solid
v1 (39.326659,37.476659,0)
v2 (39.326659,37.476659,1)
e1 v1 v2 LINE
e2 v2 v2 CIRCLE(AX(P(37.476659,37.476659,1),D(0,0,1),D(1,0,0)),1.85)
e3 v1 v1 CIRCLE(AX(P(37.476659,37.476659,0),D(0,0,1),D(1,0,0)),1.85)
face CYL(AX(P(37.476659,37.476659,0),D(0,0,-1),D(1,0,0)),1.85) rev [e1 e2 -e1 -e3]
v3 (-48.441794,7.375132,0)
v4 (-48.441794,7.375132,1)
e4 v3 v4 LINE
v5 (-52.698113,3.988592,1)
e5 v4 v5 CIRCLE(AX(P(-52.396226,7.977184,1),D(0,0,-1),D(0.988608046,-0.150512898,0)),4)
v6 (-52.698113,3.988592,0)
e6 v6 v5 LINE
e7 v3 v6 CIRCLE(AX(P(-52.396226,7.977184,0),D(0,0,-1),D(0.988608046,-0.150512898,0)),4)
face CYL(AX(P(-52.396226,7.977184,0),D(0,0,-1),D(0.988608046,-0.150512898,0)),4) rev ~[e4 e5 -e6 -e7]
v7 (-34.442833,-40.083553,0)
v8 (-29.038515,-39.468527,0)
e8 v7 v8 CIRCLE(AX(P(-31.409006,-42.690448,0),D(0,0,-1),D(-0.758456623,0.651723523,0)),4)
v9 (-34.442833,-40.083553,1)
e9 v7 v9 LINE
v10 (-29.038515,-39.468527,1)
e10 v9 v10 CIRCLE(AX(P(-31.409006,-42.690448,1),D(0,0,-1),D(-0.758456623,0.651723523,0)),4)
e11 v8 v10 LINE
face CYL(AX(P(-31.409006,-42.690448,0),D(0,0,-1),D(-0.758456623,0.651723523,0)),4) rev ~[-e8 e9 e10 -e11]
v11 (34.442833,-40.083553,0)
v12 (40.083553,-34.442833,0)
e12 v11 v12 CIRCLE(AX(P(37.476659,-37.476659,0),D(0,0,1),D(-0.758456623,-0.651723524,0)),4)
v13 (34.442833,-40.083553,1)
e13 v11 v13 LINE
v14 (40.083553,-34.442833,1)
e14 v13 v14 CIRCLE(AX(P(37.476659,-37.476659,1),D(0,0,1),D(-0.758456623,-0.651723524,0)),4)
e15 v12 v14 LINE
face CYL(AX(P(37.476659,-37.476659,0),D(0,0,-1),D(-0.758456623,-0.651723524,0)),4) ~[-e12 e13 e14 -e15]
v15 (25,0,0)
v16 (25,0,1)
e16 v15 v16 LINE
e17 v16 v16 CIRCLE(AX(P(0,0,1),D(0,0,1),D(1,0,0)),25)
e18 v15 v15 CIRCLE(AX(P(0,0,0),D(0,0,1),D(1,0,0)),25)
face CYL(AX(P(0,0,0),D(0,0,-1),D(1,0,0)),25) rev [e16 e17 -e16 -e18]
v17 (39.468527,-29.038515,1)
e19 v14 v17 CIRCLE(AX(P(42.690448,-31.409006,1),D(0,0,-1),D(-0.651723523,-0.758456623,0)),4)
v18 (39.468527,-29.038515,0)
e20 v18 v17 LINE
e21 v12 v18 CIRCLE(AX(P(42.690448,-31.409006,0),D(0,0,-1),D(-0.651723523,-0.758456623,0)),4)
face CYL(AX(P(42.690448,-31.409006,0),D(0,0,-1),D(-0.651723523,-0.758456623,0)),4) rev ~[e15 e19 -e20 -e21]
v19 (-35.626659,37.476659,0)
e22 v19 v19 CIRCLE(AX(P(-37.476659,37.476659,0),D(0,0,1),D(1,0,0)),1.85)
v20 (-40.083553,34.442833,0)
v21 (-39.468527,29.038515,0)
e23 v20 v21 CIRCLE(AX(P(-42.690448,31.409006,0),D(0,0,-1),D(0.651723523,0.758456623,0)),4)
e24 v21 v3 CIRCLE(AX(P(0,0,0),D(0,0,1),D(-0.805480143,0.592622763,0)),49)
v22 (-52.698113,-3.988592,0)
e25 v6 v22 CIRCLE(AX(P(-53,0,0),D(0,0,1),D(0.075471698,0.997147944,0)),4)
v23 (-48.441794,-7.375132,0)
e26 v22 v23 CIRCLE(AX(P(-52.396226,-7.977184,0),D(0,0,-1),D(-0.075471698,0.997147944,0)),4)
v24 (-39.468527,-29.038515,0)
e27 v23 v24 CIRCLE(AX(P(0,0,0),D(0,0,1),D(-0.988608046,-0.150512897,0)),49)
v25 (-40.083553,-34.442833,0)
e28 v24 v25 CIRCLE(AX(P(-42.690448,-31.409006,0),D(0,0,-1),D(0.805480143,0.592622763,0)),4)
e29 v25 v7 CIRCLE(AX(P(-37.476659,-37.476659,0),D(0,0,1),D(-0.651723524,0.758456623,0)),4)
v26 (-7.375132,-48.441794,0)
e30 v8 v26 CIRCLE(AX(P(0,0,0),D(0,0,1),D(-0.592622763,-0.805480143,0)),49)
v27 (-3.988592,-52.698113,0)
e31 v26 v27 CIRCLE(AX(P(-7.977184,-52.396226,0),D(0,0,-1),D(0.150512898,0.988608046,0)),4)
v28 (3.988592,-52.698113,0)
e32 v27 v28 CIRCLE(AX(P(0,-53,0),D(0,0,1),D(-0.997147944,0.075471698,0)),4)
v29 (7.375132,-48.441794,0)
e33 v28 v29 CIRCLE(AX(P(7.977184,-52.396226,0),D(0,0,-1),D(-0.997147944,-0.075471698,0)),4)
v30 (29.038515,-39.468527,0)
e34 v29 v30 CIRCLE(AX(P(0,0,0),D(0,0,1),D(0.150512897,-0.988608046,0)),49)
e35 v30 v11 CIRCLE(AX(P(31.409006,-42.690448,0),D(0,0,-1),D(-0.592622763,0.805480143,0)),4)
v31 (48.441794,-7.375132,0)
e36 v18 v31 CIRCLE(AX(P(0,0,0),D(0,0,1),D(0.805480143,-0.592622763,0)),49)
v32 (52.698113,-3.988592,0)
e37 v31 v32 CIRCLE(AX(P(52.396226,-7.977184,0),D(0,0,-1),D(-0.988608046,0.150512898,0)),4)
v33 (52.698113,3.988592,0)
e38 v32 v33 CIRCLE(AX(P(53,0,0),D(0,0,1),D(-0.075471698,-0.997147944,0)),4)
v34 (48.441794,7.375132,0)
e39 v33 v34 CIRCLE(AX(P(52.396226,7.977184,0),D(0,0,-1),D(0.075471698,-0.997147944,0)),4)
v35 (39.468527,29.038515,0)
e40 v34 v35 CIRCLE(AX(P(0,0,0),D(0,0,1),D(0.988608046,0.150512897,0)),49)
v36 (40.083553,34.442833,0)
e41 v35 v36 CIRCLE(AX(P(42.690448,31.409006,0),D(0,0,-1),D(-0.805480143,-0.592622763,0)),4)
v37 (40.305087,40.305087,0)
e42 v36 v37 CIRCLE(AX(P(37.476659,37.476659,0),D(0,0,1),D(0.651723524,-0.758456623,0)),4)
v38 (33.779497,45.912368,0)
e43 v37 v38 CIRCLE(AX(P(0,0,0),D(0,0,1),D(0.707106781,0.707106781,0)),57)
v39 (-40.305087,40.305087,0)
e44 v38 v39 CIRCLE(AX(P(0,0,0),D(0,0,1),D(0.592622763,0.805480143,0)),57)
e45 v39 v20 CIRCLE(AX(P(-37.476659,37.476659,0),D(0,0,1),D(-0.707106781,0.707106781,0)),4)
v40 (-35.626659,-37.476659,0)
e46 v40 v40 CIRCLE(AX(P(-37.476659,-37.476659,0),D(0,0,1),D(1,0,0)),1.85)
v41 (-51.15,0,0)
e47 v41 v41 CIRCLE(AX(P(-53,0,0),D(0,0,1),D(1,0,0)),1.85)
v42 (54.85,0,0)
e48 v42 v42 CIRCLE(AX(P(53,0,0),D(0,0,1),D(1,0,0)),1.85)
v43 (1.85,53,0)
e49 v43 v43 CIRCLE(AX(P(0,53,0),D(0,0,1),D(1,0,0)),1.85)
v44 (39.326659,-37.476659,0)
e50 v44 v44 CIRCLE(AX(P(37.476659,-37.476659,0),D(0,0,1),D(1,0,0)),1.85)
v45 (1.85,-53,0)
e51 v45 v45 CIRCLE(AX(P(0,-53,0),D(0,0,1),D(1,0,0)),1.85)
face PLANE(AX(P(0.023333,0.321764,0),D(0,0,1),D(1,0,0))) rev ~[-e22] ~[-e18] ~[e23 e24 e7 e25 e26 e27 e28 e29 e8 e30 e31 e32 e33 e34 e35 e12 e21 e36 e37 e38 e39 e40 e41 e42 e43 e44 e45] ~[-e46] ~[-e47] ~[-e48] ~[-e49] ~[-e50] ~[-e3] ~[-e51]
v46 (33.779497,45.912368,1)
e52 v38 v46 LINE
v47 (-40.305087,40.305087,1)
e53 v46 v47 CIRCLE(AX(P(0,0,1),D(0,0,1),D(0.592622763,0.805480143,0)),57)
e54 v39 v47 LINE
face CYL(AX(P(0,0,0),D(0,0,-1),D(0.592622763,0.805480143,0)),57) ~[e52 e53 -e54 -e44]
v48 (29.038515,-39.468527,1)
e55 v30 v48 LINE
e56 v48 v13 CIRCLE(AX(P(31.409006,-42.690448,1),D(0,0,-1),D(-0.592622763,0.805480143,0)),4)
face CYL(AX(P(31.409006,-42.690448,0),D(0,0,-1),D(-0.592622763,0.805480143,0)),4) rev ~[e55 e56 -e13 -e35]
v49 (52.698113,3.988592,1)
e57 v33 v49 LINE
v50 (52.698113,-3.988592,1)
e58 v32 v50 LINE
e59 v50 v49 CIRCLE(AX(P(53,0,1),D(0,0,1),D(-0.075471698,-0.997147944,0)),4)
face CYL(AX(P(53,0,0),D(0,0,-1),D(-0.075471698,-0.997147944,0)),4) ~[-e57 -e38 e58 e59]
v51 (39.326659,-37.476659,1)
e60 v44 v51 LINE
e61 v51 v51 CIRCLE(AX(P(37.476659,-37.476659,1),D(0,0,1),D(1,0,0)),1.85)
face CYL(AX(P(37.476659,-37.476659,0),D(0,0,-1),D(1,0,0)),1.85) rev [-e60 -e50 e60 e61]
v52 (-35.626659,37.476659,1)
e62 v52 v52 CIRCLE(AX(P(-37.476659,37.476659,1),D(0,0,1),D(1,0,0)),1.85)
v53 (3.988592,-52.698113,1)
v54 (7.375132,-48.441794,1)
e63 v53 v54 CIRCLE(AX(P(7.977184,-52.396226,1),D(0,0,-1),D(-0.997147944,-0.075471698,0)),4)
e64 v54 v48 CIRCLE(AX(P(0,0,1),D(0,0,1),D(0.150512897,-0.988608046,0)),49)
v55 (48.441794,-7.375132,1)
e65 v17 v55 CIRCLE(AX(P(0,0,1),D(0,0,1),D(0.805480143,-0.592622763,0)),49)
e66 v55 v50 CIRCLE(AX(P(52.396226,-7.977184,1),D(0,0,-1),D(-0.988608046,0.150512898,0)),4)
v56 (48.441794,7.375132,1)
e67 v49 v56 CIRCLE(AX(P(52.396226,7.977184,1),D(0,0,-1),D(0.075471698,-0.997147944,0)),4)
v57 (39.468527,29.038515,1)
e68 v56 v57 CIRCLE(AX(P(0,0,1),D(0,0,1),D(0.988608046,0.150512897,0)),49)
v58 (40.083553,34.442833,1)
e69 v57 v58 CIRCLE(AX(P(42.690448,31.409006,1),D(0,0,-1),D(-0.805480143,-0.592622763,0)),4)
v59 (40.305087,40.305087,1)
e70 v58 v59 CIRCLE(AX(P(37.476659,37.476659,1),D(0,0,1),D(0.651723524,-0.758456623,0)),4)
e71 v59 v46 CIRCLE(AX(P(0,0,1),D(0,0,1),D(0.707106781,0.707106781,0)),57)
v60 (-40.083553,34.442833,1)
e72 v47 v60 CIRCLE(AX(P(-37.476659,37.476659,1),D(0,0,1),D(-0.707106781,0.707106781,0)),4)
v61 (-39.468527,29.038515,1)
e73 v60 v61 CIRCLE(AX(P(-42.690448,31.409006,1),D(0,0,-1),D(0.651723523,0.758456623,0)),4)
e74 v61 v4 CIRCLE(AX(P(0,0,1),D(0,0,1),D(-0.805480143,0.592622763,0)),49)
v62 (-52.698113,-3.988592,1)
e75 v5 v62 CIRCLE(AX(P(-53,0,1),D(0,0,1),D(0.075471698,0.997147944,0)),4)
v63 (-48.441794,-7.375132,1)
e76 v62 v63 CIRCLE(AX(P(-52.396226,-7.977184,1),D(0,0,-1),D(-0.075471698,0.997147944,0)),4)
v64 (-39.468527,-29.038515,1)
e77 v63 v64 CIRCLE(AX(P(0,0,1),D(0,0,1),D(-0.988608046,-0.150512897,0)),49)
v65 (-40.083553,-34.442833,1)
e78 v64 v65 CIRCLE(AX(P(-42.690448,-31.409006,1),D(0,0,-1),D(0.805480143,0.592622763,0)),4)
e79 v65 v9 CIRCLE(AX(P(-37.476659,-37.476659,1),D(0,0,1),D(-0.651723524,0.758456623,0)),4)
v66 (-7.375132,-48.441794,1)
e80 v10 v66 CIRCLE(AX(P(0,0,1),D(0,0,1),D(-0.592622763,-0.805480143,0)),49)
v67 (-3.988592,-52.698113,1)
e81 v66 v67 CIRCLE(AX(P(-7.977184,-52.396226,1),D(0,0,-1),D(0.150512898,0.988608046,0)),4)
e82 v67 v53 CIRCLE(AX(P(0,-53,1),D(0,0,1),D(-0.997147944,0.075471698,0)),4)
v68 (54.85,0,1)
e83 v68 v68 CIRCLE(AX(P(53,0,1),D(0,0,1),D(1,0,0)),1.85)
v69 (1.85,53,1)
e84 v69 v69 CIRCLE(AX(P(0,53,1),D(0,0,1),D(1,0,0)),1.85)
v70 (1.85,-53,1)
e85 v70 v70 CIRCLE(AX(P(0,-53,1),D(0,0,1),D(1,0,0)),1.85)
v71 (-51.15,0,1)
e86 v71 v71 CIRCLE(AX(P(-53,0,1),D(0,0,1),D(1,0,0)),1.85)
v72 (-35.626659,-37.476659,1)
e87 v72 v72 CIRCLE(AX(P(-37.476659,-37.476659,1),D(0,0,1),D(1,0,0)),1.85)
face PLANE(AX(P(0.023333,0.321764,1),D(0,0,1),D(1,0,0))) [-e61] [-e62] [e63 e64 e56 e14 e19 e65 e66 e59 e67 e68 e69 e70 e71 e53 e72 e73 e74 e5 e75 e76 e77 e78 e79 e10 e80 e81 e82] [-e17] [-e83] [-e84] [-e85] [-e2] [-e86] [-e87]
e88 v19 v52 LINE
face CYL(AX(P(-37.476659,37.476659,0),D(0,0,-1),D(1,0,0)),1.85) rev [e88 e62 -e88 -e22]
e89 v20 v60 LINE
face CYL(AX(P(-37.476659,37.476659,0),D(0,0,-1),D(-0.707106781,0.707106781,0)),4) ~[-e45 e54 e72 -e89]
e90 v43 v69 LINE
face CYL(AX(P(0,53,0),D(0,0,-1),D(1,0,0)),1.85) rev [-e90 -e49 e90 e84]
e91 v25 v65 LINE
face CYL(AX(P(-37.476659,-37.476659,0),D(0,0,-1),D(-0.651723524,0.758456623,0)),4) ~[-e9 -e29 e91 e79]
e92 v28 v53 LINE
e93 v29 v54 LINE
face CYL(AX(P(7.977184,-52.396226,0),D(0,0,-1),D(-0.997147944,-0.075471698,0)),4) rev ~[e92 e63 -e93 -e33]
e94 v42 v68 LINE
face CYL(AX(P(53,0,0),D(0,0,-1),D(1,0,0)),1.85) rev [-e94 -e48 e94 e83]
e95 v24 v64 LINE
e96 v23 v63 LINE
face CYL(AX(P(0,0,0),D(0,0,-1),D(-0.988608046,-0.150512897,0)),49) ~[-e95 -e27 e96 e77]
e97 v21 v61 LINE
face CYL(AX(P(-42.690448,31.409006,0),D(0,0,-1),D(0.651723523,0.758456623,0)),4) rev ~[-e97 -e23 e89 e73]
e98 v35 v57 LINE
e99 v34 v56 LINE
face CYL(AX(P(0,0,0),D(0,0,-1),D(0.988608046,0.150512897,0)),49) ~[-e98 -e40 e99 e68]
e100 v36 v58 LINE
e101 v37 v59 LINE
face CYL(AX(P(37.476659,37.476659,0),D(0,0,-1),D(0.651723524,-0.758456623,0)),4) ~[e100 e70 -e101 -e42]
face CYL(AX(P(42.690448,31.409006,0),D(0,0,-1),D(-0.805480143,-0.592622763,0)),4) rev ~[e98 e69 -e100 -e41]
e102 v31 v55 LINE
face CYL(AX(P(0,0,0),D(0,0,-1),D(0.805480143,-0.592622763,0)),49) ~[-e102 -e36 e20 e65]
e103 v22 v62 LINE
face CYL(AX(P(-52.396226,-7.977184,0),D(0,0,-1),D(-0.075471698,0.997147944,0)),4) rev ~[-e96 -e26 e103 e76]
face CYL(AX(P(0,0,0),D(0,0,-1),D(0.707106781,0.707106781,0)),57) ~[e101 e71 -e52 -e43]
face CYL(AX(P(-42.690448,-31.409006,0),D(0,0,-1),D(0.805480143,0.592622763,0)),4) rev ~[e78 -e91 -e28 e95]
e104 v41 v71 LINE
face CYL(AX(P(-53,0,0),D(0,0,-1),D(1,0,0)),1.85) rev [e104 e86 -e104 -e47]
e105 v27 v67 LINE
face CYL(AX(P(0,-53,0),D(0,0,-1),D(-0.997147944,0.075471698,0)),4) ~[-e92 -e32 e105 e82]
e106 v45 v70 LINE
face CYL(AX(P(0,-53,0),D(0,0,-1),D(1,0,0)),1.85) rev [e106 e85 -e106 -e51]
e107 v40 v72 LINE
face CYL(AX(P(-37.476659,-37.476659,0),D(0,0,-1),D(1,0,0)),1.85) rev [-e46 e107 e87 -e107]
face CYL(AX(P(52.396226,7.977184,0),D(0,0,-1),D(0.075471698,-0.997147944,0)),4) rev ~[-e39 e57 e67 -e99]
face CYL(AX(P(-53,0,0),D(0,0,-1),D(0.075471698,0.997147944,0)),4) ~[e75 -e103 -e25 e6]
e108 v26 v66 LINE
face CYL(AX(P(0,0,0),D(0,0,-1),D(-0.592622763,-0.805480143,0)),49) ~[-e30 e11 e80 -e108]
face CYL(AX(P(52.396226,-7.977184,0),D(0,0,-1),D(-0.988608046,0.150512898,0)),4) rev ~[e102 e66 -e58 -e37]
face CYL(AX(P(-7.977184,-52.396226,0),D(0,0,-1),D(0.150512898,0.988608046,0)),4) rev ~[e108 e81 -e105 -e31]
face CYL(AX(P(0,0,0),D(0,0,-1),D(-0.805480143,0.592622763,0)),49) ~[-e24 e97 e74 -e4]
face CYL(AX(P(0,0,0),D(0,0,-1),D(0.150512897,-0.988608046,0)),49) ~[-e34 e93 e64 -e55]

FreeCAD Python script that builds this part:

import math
import FreeCAD as App
import Part
import Sketcher

V = App.Vector
Q = App.Units.Quantity

doc = App.newDocument("Part")
body = doc.addObject("PartDesign::Body", "Body")

sketch1 = body.newObject("Sketcher::SketchObject", "Sketch")
sketch1.AttachmentSupport = (doc.getObject("XY_Plane"), [""])
sketch1.MapMode = "FlatFace"
sketch1.addGeometry(Part.ArcOfCircle(Part.Circle(V(0, 0, 0), V(0, 0, 1), 57), math.radians(53.656651), math.radians(135)), False)
sketch1.addGeometry(Part.ArcOfCircle(Part.Circle(V(-37.476659, 37.476659, 0), V(0, 0, 1), 4), math.radians(135), math.radians(229.328325)), False)
sketch1.addGeometry(Part.ArcOfCircle(Part.Circle(V(-42.690448, 31.409006, 0), V(0, 0, 1), 4), math.radians(-36.343349), math.radians(49.328325)), False)
sketch1.addGeometry(Part.ArcOfCircle(Part.Circle(V(0, 0, 0), V(0, 0, 1), 49), math.radians(143.656651), math.radians(171.343349)), False)
sketch1.addGeometry(Part.ArcOfCircle(Part.Circle(V(-52.396226, 7.977184, 0), V(0, 0, 1), 4), math.radians(-94.328325), math.radians(-8.656651)), False)
sketch1.addGeometry(Part.ArcOfCircle(Part.Circle(V(-53, 0, 0), V(0, 0, 1), 4), math.radians(85.671675), math.radians(274.328325)), False)
sketch1.addGeometry(Part.ArcOfCircle(Part.Circle(V(-52.396226, -7.977184, 0), V(0, 0, 1), 4), math.radians(8.656651), math.radians(94.328325)), False)
sketch1.addGeometry(Part.ArcOfCircle(Part.Circle(V(0, 0, 0), V(0, 0, 1), 49), math.radians(-171.343349), math.radians(-143.656651)), False)
sketch1.addGeometry(Part.ArcOfCircle(Part.Circle(V(-42.690448, -31.409006, 0), V(0, 0, 1), 4), math.radians(-49.328325), math.radians(36.343349)), False)
sketch1.addGeometry(Part.ArcOfCircle(Part.Circle(V(-37.476659, -37.476659, 0), V(0, 0, 1), 4), math.radians(130.671675), math.radians(319.328325)), False)
sketch1.addGeometry(Part.ArcOfCircle(Part.Circle(V(-31.409006, -42.690448, 0), V(0, 0, 1), 4), math.radians(53.656651), math.radians(139.328325)), False)
sketch1.addGeometry(Part.ArcOfCircle(Part.Circle(V(0, 0, 0), V(0, 0, 1), 49), math.radians(-126.343349), math.radians(-98.656651)), False)
sketch1.addGeometry(Part.ArcOfCircle(Part.Circle(V(-7.977184, -52.396226, 0), V(0, 0, 1), 4), math.radians(-4.328325), math.radians(81.343349)), False)
sketch1.addGeometry(Part.ArcOfCircle(Part.Circle(V(0, -53, 0), V(0, 0, 1), 4), math.radians(175.671675), math.radians(364.328325)), False)
sketch1.addGeometry(Part.ArcOfCircle(Part.Circle(V(7.977184, -52.396226, 0), V(0, 0, 1), 4), math.radians(98.656651), math.radians(184.328325)), False)
sketch1.addGeometry(Part.ArcOfCircle(Part.Circle(V(0, 0, 0), V(0, 0, 1), 49), math.radians(-81.343349), math.radians(-53.656651)), False)
sketch1.addGeometry(Part.ArcOfCircle(Part.Circle(V(31.409006, -42.690448, 0), V(0, 0, 1), 4), math.radians(40.671675), math.radians(126.343349)), False)
sketch1.addGeometry(Part.ArcOfCircle(Part.Circle(V(37.476659, -37.476659, 0), V(0, 0, 1), 4), math.radians(-139.328325), math.radians(49.328325)), False)
sketch1.addGeometry(Part.ArcOfCircle(Part.Circle(V(42.690448, -31.409006, 0), V(0, 0, 1), 4), math.radians(143.656651), math.radians(229.328325)), False)
sketch1.addGeometry(Part.ArcOfCircle(Part.Circle(V(0, 0, 0), V(0, 0, 1), 49), math.radians(-36.343349), math.radians(-8.656651)), False)
sketch1.addGeometry(Part.ArcOfCircle(Part.Circle(V(52.396226, -7.977184, 0), V(0, 0, 1), 4), math.radians(85.671675), math.radians(171.343349)), False)
sketch1.addGeometry(Part.ArcOfCircle(Part.Circle(V(53, 0, 0), V(0, 0, 1), 4), math.radians(-94.328325), math.radians(94.328325)), False)
sketch1.addGeometry(Part.ArcOfCircle(Part.Circle(V(52.396226, 7.977184, 0), V(0, 0, 1), 4), math.radians(-171.343349), math.radians(-85.671675)), False)
sketch1.addGeometry(Part.ArcOfCircle(Part.Circle(V(0, 0, 0), V(0, 0, 1), 49), math.radians(8.656651), math.radians(36.343349)), False)
sketch1.addGeometry(Part.ArcOfCircle(Part.Circle(V(42.690448, 31.409006, 0), V(0, 0, 1), 4), math.radians(130.671675), math.radians(216.343349)), False)
sketch1.addGeometry(Part.ArcOfCircle(Part.Circle(V(37.476659, 37.476659, 0), V(0, 0, 1), 4), math.radians(-49.328325), math.radians(45)), False)
sketch1.addGeometry(Part.ArcOfCircle(Part.Circle(V(0, 0, 0), V(0, 0, 1), 57), math.radians(45), math.radians(53.656651)), False)
sketch1.addGeometry(Part.Circle(V(-37.476659, -37.476659, 0), V(0, 0, 1), 1.85), False)
sketch1.addGeometry(Part.Circle(V(0, -53, 0), V(0, 0, 1), 1.85), False)
sketch1.addGeometry(Part.Circle(V(37.476659, -37.476659, 0), V(0, 0, 1), 1.85), False)
sketch1.addGeometry(Part.Circle(V(-53, 0, 0), V(0, 0, 1), 1.85), False)
sketch1.addGeometry(Part.Circle(V(0, 0, 0), V(0, 0, 1), 25), False)
sketch1.addGeometry(Part.Circle(V(-37.476659, 37.476659, 0), V(0, 0, 1), 1.85), False)
sketch1.addGeometry(Part.Circle(V(53, 0, 0), V(0, 0, 1), 1.85), False)
sketch1.addGeometry(Part.Circle(V(0, 53, 0), V(0, 0, 1), 1.85), False)
sketch1.addGeometry(Part.Circle(V(37.476659, 37.476659, 0), V(0, 0, 1), 1.85), False)
sketch1.addConstraint(Sketcher.Constraint("Tangent", 0, 2, 1, 1))
sketch1.addConstraint(Sketcher.Constraint("Tangent", 1, 2, 2, 2))
sketch1.addConstraint(Sketcher.Constraint("Tangent", 2, 1, 3, 1))
sketch1.addConstraint(Sketcher.Constraint("Tangent", 3, 2, 4, 2))
sketch1.addConstraint(Sketcher.Constraint("Tangent", 4, 1, 5, 1))
sketch1.addConstraint(Sketcher.Constraint("Tangent", 5, 2, 6, 2))
sketch1.addConstraint(Sketcher.Constraint("Tangent", 6, 1, 7, 1))
sketch1.addConstraint(Sketcher.Constraint("Tangent", 7, 2, 8, 2))
sketch1.addConstraint(Sketcher.Constraint("Tangent", 8, 1, 9, 1))
sketch1.addConstraint(Sketcher.Constraint("Tangent", 9, 2, 10, 2))
sketch1.addConstraint(Sketcher.Constraint("Tangent", 10, 1, 11, 1))
sketch1.addConstraint(Sketcher.Constraint("Tangent", 11, 2, 12, 2))
sketch1.addConstraint(Sketcher.Constraint("Tangent", 12, 1, 13, 1))
sketch1.addConstraint(Sketcher.Constraint("Tangent", 13, 2, 14, 2))
sketch1.addConstraint(Sketcher.Constraint("Tangent", 14, 1, 15, 1))
sketch1.addConstraint(Sketcher.Constraint("Tangent", 15, 2, 16, 2))
sketch1.addConstraint(Sketcher.Constraint("Tangent", 16, 1, 17, 1))
sketch1.addConstraint(Sketcher.Constraint("Tangent", 17, 2, 18, 2))
sketch1.addConstraint(Sketcher.Constraint("Tangent", 18, 1, 19, 1))
sketch1.addConstraint(Sketcher.Constraint("Tangent", 19, 2, 20, 2))
sketch1.addConstraint(Sketcher.Constraint("Tangent", 20, 1, 21, 1))
sketch1.addConstraint(Sketcher.Constraint("Tangent", 21, 2, 22, 2))
sketch1.addConstraint(Sketcher.Constraint("Tangent", 22, 1, 23, 1))
sketch1.addConstraint(Sketcher.Constraint("Tangent", 23, 2, 24, 2))
sketch1.addConstraint(Sketcher.Constraint("Tangent", 24, 1, 25, 1))
sketch1.addConstraint(Sketcher.Constraint("Tangent", 25, 2, 26, 1))
sketch1.addConstraint(Sketcher.Constraint("Tangent", 26, 2, 0, 1))
sketch1.addConstraint(Sketcher.Constraint("Coincident", 0, 3, -1, 1))
sketch1.addConstraint(Sketcher.Constraint("Coincident", 3, 3, -1, 1))
sketch1.addConstraint(Sketcher.Constraint("Coincident", 7, 3, -1, 1))
sketch1.addConstraint(Sketcher.Constraint("Coincident", 11, 3, -1, 1))
sketch1.addConstraint(Sketcher.Constraint("Coincident", 15, 3, -1, 1))
sketch1.addConstraint(Sketcher.Constraint("Coincident", 19, 3, -1, 1))
sketch1.addConstraint(Sketcher.Constraint("Coincident", 23, 3, -1, 1))
sketch1.addConstraint(Sketcher.Constraint("Coincident", 31, 3, -1, 1))
sketch1.addConstraint(Sketcher.Constraint("Coincident", 27, 3, 9, 3))
sketch1.addConstraint(Sketcher.Constraint("Coincident", 28, 3, 13, 3))
sketch1.addConstraint(Sketcher.Constraint("Coincident", 29, 3, 17, 3))
sketch1.addConstraint(Sketcher.Constraint("Coincident", 30, 3, 5, 3))
sketch1.addConstraint(Sketcher.Constraint("Coincident", 32, 3, 1, 3))
sketch1.addConstraint(Sketcher.Constraint("Coincident", 33, 3, 21, 3))
sketch1.addConstraint(Sketcher.Constraint("Coincident", 35, 3, 25, 3))
sketch1.addConstraint(Sketcher.Constraint("Equal", 1, 2))
sketch1.addConstraint(Sketcher.Constraint("Equal", 2, 4))
sketch1.addConstraint(Sketcher.Constraint("Equal", 4, 5))
sketch1.addConstraint(Sketcher.Constraint("Equal", 5, 6))
sketch1.addConstraint(Sketcher.Constraint("Equal", 3, 7))
sketch1.addConstraint(Sketcher.Constraint("Equal", 6, 8))
sketch1.addConstraint(Sketcher.Constraint("Equal", 8, 9))
sketch1.addConstraint(Sketcher.Constraint("Equal", 9, 10))
sketch1.addConstraint(Sketcher.Constraint("Equal", 7, 11))
sketch1.addConstraint(Sketcher.Constraint("Equal", 10, 12))
sketch1.addConstraint(Sketcher.Constraint("Equal", 12, 13))
sketch1.addConstraint(Sketcher.Constraint("Equal", 13, 14))
sketch1.addConstraint(Sketcher.Constraint("Equal", 11, 15))
sketch1.addConstraint(Sketcher.Constraint("Equal", 14, 16))
sketch1.addConstraint(Sketcher.Constraint("Equal", 16, 17))
sketch1.addConstraint(Sketcher.Constraint("Equal", 17, 18))
sketch1.addConstraint(Sketcher.Constraint("Equal", 15, 19))
sketch1.addConstraint(Sketcher.Constraint("Equal", 18, 20))
sketch1.addConstraint(Sketcher.Constraint("Equal", 20, 21))
sketch1.addConstraint(Sketcher.Constraint("Equal", 21, 22))
sketch1.addConstraint(Sketcher.Constraint("Equal", 19, 23))
sketch1.addConstraint(Sketcher.Constraint("Equal", 22, 24))
sketch1.addConstraint(Sketcher.Constraint("Equal", 24, 25))
sketch1.addConstraint(Sketcher.Constraint("Equal", 0, 26))
sketch1.addConstraint(Sketcher.Constraint("Equal", 27, 28))
sketch1.addConstraint(Sketcher.Constraint("Equal", 28, 29))
sketch1.addConstraint(Sketcher.Constraint("Equal", 29, 30))
sketch1.addConstraint(Sketcher.Constraint("Equal", 30, 32))
sketch1.addConstraint(Sketcher.Constraint("Equal", 32, 33))
sketch1.addConstraint(Sketcher.Constraint("Equal", 33, 34))
sketch1.addConstraint(Sketcher.Constraint("Equal", 34, 35))
sketch1.addConstraint(Sketcher.Constraint("Symmetric", 1, 3, 17, 3, -1, 1))
sketch1.addConstraint(Sketcher.Constraint("Symmetric", 5, 3, 21, 3, -1, 1))
sketch1.addConstraint(Sketcher.Constraint("Symmetric", 9, 3, 25, 3, -1, 1))
sketch1.addConstraint(Sketcher.Constraint("Symmetric", 13, 3, 34, 3, -1, 1))
sketch1.addConstraint(Sketcher.Constraint("PointOnObject", 5, 3, -1))
sketch1.addConstraint(Sketcher.Constraint("PointOnObject", 13, 3, -2))
sketch1.addConstraint(Sketcher.Constraint("Horizontal", 10, 3, 16, 3))
sketch1.addConstraint(Sketcher.Constraint("Diameter", 31, Q("50 mm")))
sketch1.addConstraint(Sketcher.Constraint("Radius", 0, Q("57 mm")))
sketch1.addConstraint(Sketcher.Constraint("Radius", 1, Q("4 mm")))
sketch1.addConstraint(Sketcher.Constraint("Radius", 3, Q("49 mm")))
sketch1.addConstraint(Sketcher.Constraint("Diameter", 27, Q("3.7 mm")))
sketch1.addConstraint(Sketcher.Constraint("DistanceX", 5, 3, -1, 1, Q("53 mm")))
sketch1.addConstraint(Sketcher.Constraint("DistanceY", 13, 3, -1, 1, Q("53 mm")))
sketch1.addConstraint(Sketcher.Constraint("DistanceX", 1, 3, -1, 1, Q("37.476659 mm")))
sketch1.addConstraint(Sketcher.Constraint("DistanceY", -1, 1, 26, 2, Q("45.912368 mm")))
pad1 = body.newObject("PartDesign::Pad", "Pad")
pad1.Profile = sketch1
pad1.Length = 1

doc.recompute()
